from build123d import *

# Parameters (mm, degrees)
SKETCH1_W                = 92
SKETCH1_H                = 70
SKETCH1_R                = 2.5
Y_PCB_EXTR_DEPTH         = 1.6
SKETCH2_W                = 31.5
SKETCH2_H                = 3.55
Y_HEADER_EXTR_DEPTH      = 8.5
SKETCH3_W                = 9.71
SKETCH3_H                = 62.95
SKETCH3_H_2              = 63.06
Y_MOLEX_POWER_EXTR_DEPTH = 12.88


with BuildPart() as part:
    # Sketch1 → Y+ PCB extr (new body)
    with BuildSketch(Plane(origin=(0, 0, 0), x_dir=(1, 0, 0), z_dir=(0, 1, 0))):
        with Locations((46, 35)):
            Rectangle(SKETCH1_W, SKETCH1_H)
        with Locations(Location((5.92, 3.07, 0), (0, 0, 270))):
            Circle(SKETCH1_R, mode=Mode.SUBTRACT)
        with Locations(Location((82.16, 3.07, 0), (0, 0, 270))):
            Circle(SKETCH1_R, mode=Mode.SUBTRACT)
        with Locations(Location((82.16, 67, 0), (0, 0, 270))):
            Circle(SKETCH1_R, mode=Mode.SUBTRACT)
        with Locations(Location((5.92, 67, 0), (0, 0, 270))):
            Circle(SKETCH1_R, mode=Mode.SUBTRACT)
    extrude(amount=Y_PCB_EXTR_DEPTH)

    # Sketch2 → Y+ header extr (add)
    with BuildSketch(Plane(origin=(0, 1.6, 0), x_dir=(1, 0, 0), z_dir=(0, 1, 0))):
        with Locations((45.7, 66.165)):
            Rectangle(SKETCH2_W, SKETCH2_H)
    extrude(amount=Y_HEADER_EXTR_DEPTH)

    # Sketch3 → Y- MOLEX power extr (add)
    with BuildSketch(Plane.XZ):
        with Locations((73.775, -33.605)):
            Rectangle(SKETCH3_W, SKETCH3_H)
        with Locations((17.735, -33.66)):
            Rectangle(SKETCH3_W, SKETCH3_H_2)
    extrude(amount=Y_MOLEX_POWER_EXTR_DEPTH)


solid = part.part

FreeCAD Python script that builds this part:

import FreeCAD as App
import Part
import Sketcher
from FreeCAD import Vector

doc = App.newDocument("Part")
body = doc.addObject("PartDesign::Body", "Body")

sketch1 = doc.addObject("Sketcher::SketchObject", "Sketch")
body.addObject(sketch1)
sketch1.AttachmentSupport = (doc.XZ_Plane, [""])
sketch1.MapMode = "FlatFace"
sketch1.addGeometry(Part.LineSegment(Vector(0, -70, 0), Vector(0, 0, 0)), False)
sketch1.addGeometry(Part.LineSegment(Vector(0, 0, 0), Vector(92, 0, 0)), False)
sketch1.addGeometry(Part.LineSegment(Vector(92, 0, 0), Vector(92, -70, 0)), False)
sketch1.addGeometry(Part.LineSegment(Vector(92, -70, 0), Vector(0, -70, 0)), False)
sketch1.addGeometry(Part.Circle(Vector(5.92, -3.07, 0), Vector(0, 0, 1), 2.5), False)
sketch1.addGeometry(Part.Circle(Vector(82.16, -3.07, 0), Vector(0, 0, 1), 2.5), False)
sketch1.addGeometry(Part.Circle(Vector(5.92, -67, 0), Vector(0, 0, 1), 2.5), False)
sketch1.addGeometry(Part.Circle(Vector(82.16, -67, 0), Vector(0, 0, 1), 2.5), False)
sketch1.addConstraint(Sketcher.Constraint("Coincident", 0, 2, 1, 1))
sketch1.addConstraint(Sketcher.Constraint("Coincident", 1, 2, 2, 1))
sketch1.addConstraint(Sketcher.Constraint("Coincident", 2, 2, 3, 1))
sketch1.addConstraint(Sketcher.Constraint("Coincident", 3, 2, 0, 1))
sketch1.addConstraint(Sketcher.Constraint("Vertical", 0))
sketch1.addConstraint(Sketcher.Constraint("Horizontal", 1))
sketch1.addConstraint(Sketcher.Constraint("Vertical", 2))
sketch1.addConstraint(Sketcher.Constraint("Horizontal", 3))
sketch1.addConstraint(Sketcher.Constraint("Coincident", 0, 2, -1, 1))
sketch1.addConstraint(Sketcher.Constraint("Equal", 4, 5))
sketch1.addConstraint(Sketcher.Constraint("Equal", 5, 6))
sketch1.addConstraint(Sketcher.Constraint("Equal", 6, 7))
sketch1.addConstraint(Sketcher.Constraint("Horizontal", 4, 3, 5, 3))
sketch1.addConstraint(Sketcher.Constraint("Horizontal", 6, 3, 7, 3))
sketch1.addConstraint(Sketcher.Constraint("Vertical", 4, 3, 6, 3))
sketch1.addConstraint(Sketcher.Constraint("Vertical", 5, 3, 7, 3))
sketch1.addConstraint(Sketcher.Constraint("Diameter", 4, 5.0))
sketch1.addConstraint(Sketcher.Constraint("DistanceX", 1, 1, 1, 2, 92.0))
sketch1.addConstraint(Sketcher.Constraint("DistanceY", 0, 1, 0, 2, 70.0))
sketch1.addConstraint(Sketcher.Constraint("DistanceY", 6, 3, -1, 1, 67.0))
sketch1.addConstraint(Sketcher.Constraint("DistanceX", -1, 1, 4, 3, 5.92))
sketch1.addConstraint(Sketcher.Constraint("DistanceY", 4, 3, -1, 1, 3.07))
sketch1.addConstraint(Sketcher.Constraint("DistanceX", -1, 1, 5, 3, 82.16))
pad1 = doc.addObject("PartDesign::Pad", "Pad")
body.addObject(pad1)
pad1.Profile = sketch1
pad1.Length = 1.6
pad1.Reversed = True

sketch2 = doc.addObject("Sketcher::SketchObject", "Sketch001")
body.addObject(sketch2)
sketch2.AttachmentSupport = (doc.XZ_Plane, [""])
sketch2.MapMode = "FlatFace"
sketch2.AttachmentOffset = App.Placement(Vector(0, 0, -1.6), App.Rotation())
sketch2.addGeometry(Part.LineSegment(Vector(29.95, -67.94, 0), Vector(29.95, -64.39, 0)), False)
sketch2.addGeometry(Part.LineSegment(Vector(29.95, -64.39, 0), Vector(61.45, -64.39, 0)), False)
sketch2.addGeometry(Part.LineSegment(Vector(61.45, -64.39, 0), Vector(61.45, -67.94, 0)), False)
sketch2.addGeometry(Part.LineSegment(Vector(61.45, -67.94, 0), Vector(29.95, -67.94, 0)), False)
sketch2.addConstraint(Sketcher.Constraint("Coincident", 0, 2, 1, 1))
sketch2.addConstraint(Sketcher.Constraint("Coincident", 1, 2, 2, 1))
sketch2.addConstraint(Sketcher.Constraint("Coincident", 2, 2, 3, 1))
sketch2.addConstraint(Sketcher.Constraint("Coincident", 3, 2, 0, 1))
sketch2.addConstraint(Sketcher.Constraint("Vertical", 0))
sketch2.addConstraint(Sketcher.Constraint("Horizontal", 1))
sketch2.addConstraint(Sketcher.Constraint("Vertical", 2))
sketch2.addConstraint(Sketcher.Constraint("Horizontal", 3))
sketch2.addConstraint(Sketcher.Constraint("DistanceX", 1, 1, 1, 2, 31.5))
sketch2.addConstraint(Sketcher.Constraint("DistanceY", 0, 1, 0, 2, 3.55))
sketch2.addConstraint(Sketcher.Constraint("DistanceX", -1, 1, 0, 2, 29.95))
sketch2.addConstraint(Sketcher.Constraint("DistanceY", 0, 2, -1, 1, 64.39))
pad2 = doc.addObject("PartDesign::Pad", "Pad001")
body.addObject(pad2)
pad2.Profile = sketch2
pad2.Length = 8.5
pad2.Reversed = True

sketch3 = doc.addObject("Sketcher::SketchObject", "Sketch002")
body.addObject(sketch3)
sketch3.AttachmentSupport = (doc.XZ_Plane, [""])
sketch3.MapMode = "FlatFace"
sketch3.addGeometry(Part.LineSegment(Vector(68.92, -2.13, 0), Vector(68.92, -65.08, 0)), False)
sketch3.addGeometry(Part.LineSegment(Vector(68.92, -65.08, 0), Vector(78.63, -65.08, 0)), False)
sketch3.addGeometry(Part.LineSegment(Vector(78.63, -65.08, 0), Vector(78.63, -2.13, 0)), False)
sketch3.addGeometry(Part.LineSegment(Vector(78.63, -2.13, 0), Vector(68.92, -2.13, 0)), False)
sketch3.addGeometry(Part.LineSegment(Vector(12.88, -2.13, 0), Vector(12.88, -65.19, 0)), False)
sketch3.addGeometry(Part.LineSegment(Vector(12.88, -65.19, 0), Vector(22.59, -65.19, 0)), False)
sketch3.addGeometry(Part.LineSegment(Vector(22.59, -65.19, 0), Vector(22.59, -2.13, 0)), False)
sketch3.addGeometry(Part.LineSegment(Vector(22.59, -2.13, 0), Vector(12.88, -2.13, 0)), False)
sketch3.addConstraint(Sketcher.Constraint("Coincident", 0, 2, 1, 1))
sketch3.addConstraint(Sketcher.Constraint("Coincident", 1, 2, 2, 1))
sketch3.addConstraint(Sketcher.Constraint("Coincident", 2, 2, 3, 1))
sketch3.addConstraint(Sketcher.Constraint("Coincident", 3, 2, 0, 1))
sketch3.addConstraint(Sketcher.Constraint("Coincident", 4, 2, 5, 1))
sketch3.addConstraint(Sketcher.Constraint("Coincident", 5, 2, 6, 1))
sketch3.addConstraint(Sketcher.Constraint("Coincident", 6, 2, 7, 1))
sketch3.addConstraint(Sketcher.Constraint("Coincident", 7, 2, 4, 1))
sketch3.addConstraint(Sketcher.Constraint("Vertical", 0))
sketch3.addConstraint(Sketcher.Constraint("Horizontal", 1))
sketch3.addConstraint(Sketcher.Constraint("Vertical", 2))
sketch3.addConstraint(Sketcher.Constraint("Horizontal", 3))
sketch3.addConstraint(Sketcher.Constraint("Vertical", 4))
sketch3.addConstraint(Sketcher.Constraint("Horizontal", 5))
sketch3.addConstraint(Sketcher.Constraint("Vertical", 6))
sketch3.addConstraint(Sketcher.Constraint("Horizontal", 7))
sketch3.addConstraint(Sketcher.Constraint("Horizontal", 3, 2, 6, 2))
sketch3.addConstraint(Sketcher.Constraint("Equal", 3, 5))
sketch3.addConstraint(Sketcher.Constraint("DistanceX", 1, 1, 1, 2, 9.71))
sketch3.addConstraint(Sketcher.Constraint("DistanceY", 0, 2, 0, 1, 62.95))
sketch3.addConstraint(Sketcher.Constraint("DistanceY", 4, 2, 4, 1, 63.06))
sketch3.addConstraint(Sketcher.Constraint("DistanceX", -1, 1, 0, 2, 68.92))
sketch3.addConstraint(Sketcher.Constraint("DistanceY", 0, 2, -1, 1, 65.08))
sketch3.addConstraint(Sketcher.Constraint("DistanceX", -1, 1, 4, 2, 12.88))
pad3 = doc.addObject("PartDesign::Pad", "Pad002")
body.addObject(pad3)
pad3.Profile = sketch3
pad3.Length = 12.88

doc.recompute()
